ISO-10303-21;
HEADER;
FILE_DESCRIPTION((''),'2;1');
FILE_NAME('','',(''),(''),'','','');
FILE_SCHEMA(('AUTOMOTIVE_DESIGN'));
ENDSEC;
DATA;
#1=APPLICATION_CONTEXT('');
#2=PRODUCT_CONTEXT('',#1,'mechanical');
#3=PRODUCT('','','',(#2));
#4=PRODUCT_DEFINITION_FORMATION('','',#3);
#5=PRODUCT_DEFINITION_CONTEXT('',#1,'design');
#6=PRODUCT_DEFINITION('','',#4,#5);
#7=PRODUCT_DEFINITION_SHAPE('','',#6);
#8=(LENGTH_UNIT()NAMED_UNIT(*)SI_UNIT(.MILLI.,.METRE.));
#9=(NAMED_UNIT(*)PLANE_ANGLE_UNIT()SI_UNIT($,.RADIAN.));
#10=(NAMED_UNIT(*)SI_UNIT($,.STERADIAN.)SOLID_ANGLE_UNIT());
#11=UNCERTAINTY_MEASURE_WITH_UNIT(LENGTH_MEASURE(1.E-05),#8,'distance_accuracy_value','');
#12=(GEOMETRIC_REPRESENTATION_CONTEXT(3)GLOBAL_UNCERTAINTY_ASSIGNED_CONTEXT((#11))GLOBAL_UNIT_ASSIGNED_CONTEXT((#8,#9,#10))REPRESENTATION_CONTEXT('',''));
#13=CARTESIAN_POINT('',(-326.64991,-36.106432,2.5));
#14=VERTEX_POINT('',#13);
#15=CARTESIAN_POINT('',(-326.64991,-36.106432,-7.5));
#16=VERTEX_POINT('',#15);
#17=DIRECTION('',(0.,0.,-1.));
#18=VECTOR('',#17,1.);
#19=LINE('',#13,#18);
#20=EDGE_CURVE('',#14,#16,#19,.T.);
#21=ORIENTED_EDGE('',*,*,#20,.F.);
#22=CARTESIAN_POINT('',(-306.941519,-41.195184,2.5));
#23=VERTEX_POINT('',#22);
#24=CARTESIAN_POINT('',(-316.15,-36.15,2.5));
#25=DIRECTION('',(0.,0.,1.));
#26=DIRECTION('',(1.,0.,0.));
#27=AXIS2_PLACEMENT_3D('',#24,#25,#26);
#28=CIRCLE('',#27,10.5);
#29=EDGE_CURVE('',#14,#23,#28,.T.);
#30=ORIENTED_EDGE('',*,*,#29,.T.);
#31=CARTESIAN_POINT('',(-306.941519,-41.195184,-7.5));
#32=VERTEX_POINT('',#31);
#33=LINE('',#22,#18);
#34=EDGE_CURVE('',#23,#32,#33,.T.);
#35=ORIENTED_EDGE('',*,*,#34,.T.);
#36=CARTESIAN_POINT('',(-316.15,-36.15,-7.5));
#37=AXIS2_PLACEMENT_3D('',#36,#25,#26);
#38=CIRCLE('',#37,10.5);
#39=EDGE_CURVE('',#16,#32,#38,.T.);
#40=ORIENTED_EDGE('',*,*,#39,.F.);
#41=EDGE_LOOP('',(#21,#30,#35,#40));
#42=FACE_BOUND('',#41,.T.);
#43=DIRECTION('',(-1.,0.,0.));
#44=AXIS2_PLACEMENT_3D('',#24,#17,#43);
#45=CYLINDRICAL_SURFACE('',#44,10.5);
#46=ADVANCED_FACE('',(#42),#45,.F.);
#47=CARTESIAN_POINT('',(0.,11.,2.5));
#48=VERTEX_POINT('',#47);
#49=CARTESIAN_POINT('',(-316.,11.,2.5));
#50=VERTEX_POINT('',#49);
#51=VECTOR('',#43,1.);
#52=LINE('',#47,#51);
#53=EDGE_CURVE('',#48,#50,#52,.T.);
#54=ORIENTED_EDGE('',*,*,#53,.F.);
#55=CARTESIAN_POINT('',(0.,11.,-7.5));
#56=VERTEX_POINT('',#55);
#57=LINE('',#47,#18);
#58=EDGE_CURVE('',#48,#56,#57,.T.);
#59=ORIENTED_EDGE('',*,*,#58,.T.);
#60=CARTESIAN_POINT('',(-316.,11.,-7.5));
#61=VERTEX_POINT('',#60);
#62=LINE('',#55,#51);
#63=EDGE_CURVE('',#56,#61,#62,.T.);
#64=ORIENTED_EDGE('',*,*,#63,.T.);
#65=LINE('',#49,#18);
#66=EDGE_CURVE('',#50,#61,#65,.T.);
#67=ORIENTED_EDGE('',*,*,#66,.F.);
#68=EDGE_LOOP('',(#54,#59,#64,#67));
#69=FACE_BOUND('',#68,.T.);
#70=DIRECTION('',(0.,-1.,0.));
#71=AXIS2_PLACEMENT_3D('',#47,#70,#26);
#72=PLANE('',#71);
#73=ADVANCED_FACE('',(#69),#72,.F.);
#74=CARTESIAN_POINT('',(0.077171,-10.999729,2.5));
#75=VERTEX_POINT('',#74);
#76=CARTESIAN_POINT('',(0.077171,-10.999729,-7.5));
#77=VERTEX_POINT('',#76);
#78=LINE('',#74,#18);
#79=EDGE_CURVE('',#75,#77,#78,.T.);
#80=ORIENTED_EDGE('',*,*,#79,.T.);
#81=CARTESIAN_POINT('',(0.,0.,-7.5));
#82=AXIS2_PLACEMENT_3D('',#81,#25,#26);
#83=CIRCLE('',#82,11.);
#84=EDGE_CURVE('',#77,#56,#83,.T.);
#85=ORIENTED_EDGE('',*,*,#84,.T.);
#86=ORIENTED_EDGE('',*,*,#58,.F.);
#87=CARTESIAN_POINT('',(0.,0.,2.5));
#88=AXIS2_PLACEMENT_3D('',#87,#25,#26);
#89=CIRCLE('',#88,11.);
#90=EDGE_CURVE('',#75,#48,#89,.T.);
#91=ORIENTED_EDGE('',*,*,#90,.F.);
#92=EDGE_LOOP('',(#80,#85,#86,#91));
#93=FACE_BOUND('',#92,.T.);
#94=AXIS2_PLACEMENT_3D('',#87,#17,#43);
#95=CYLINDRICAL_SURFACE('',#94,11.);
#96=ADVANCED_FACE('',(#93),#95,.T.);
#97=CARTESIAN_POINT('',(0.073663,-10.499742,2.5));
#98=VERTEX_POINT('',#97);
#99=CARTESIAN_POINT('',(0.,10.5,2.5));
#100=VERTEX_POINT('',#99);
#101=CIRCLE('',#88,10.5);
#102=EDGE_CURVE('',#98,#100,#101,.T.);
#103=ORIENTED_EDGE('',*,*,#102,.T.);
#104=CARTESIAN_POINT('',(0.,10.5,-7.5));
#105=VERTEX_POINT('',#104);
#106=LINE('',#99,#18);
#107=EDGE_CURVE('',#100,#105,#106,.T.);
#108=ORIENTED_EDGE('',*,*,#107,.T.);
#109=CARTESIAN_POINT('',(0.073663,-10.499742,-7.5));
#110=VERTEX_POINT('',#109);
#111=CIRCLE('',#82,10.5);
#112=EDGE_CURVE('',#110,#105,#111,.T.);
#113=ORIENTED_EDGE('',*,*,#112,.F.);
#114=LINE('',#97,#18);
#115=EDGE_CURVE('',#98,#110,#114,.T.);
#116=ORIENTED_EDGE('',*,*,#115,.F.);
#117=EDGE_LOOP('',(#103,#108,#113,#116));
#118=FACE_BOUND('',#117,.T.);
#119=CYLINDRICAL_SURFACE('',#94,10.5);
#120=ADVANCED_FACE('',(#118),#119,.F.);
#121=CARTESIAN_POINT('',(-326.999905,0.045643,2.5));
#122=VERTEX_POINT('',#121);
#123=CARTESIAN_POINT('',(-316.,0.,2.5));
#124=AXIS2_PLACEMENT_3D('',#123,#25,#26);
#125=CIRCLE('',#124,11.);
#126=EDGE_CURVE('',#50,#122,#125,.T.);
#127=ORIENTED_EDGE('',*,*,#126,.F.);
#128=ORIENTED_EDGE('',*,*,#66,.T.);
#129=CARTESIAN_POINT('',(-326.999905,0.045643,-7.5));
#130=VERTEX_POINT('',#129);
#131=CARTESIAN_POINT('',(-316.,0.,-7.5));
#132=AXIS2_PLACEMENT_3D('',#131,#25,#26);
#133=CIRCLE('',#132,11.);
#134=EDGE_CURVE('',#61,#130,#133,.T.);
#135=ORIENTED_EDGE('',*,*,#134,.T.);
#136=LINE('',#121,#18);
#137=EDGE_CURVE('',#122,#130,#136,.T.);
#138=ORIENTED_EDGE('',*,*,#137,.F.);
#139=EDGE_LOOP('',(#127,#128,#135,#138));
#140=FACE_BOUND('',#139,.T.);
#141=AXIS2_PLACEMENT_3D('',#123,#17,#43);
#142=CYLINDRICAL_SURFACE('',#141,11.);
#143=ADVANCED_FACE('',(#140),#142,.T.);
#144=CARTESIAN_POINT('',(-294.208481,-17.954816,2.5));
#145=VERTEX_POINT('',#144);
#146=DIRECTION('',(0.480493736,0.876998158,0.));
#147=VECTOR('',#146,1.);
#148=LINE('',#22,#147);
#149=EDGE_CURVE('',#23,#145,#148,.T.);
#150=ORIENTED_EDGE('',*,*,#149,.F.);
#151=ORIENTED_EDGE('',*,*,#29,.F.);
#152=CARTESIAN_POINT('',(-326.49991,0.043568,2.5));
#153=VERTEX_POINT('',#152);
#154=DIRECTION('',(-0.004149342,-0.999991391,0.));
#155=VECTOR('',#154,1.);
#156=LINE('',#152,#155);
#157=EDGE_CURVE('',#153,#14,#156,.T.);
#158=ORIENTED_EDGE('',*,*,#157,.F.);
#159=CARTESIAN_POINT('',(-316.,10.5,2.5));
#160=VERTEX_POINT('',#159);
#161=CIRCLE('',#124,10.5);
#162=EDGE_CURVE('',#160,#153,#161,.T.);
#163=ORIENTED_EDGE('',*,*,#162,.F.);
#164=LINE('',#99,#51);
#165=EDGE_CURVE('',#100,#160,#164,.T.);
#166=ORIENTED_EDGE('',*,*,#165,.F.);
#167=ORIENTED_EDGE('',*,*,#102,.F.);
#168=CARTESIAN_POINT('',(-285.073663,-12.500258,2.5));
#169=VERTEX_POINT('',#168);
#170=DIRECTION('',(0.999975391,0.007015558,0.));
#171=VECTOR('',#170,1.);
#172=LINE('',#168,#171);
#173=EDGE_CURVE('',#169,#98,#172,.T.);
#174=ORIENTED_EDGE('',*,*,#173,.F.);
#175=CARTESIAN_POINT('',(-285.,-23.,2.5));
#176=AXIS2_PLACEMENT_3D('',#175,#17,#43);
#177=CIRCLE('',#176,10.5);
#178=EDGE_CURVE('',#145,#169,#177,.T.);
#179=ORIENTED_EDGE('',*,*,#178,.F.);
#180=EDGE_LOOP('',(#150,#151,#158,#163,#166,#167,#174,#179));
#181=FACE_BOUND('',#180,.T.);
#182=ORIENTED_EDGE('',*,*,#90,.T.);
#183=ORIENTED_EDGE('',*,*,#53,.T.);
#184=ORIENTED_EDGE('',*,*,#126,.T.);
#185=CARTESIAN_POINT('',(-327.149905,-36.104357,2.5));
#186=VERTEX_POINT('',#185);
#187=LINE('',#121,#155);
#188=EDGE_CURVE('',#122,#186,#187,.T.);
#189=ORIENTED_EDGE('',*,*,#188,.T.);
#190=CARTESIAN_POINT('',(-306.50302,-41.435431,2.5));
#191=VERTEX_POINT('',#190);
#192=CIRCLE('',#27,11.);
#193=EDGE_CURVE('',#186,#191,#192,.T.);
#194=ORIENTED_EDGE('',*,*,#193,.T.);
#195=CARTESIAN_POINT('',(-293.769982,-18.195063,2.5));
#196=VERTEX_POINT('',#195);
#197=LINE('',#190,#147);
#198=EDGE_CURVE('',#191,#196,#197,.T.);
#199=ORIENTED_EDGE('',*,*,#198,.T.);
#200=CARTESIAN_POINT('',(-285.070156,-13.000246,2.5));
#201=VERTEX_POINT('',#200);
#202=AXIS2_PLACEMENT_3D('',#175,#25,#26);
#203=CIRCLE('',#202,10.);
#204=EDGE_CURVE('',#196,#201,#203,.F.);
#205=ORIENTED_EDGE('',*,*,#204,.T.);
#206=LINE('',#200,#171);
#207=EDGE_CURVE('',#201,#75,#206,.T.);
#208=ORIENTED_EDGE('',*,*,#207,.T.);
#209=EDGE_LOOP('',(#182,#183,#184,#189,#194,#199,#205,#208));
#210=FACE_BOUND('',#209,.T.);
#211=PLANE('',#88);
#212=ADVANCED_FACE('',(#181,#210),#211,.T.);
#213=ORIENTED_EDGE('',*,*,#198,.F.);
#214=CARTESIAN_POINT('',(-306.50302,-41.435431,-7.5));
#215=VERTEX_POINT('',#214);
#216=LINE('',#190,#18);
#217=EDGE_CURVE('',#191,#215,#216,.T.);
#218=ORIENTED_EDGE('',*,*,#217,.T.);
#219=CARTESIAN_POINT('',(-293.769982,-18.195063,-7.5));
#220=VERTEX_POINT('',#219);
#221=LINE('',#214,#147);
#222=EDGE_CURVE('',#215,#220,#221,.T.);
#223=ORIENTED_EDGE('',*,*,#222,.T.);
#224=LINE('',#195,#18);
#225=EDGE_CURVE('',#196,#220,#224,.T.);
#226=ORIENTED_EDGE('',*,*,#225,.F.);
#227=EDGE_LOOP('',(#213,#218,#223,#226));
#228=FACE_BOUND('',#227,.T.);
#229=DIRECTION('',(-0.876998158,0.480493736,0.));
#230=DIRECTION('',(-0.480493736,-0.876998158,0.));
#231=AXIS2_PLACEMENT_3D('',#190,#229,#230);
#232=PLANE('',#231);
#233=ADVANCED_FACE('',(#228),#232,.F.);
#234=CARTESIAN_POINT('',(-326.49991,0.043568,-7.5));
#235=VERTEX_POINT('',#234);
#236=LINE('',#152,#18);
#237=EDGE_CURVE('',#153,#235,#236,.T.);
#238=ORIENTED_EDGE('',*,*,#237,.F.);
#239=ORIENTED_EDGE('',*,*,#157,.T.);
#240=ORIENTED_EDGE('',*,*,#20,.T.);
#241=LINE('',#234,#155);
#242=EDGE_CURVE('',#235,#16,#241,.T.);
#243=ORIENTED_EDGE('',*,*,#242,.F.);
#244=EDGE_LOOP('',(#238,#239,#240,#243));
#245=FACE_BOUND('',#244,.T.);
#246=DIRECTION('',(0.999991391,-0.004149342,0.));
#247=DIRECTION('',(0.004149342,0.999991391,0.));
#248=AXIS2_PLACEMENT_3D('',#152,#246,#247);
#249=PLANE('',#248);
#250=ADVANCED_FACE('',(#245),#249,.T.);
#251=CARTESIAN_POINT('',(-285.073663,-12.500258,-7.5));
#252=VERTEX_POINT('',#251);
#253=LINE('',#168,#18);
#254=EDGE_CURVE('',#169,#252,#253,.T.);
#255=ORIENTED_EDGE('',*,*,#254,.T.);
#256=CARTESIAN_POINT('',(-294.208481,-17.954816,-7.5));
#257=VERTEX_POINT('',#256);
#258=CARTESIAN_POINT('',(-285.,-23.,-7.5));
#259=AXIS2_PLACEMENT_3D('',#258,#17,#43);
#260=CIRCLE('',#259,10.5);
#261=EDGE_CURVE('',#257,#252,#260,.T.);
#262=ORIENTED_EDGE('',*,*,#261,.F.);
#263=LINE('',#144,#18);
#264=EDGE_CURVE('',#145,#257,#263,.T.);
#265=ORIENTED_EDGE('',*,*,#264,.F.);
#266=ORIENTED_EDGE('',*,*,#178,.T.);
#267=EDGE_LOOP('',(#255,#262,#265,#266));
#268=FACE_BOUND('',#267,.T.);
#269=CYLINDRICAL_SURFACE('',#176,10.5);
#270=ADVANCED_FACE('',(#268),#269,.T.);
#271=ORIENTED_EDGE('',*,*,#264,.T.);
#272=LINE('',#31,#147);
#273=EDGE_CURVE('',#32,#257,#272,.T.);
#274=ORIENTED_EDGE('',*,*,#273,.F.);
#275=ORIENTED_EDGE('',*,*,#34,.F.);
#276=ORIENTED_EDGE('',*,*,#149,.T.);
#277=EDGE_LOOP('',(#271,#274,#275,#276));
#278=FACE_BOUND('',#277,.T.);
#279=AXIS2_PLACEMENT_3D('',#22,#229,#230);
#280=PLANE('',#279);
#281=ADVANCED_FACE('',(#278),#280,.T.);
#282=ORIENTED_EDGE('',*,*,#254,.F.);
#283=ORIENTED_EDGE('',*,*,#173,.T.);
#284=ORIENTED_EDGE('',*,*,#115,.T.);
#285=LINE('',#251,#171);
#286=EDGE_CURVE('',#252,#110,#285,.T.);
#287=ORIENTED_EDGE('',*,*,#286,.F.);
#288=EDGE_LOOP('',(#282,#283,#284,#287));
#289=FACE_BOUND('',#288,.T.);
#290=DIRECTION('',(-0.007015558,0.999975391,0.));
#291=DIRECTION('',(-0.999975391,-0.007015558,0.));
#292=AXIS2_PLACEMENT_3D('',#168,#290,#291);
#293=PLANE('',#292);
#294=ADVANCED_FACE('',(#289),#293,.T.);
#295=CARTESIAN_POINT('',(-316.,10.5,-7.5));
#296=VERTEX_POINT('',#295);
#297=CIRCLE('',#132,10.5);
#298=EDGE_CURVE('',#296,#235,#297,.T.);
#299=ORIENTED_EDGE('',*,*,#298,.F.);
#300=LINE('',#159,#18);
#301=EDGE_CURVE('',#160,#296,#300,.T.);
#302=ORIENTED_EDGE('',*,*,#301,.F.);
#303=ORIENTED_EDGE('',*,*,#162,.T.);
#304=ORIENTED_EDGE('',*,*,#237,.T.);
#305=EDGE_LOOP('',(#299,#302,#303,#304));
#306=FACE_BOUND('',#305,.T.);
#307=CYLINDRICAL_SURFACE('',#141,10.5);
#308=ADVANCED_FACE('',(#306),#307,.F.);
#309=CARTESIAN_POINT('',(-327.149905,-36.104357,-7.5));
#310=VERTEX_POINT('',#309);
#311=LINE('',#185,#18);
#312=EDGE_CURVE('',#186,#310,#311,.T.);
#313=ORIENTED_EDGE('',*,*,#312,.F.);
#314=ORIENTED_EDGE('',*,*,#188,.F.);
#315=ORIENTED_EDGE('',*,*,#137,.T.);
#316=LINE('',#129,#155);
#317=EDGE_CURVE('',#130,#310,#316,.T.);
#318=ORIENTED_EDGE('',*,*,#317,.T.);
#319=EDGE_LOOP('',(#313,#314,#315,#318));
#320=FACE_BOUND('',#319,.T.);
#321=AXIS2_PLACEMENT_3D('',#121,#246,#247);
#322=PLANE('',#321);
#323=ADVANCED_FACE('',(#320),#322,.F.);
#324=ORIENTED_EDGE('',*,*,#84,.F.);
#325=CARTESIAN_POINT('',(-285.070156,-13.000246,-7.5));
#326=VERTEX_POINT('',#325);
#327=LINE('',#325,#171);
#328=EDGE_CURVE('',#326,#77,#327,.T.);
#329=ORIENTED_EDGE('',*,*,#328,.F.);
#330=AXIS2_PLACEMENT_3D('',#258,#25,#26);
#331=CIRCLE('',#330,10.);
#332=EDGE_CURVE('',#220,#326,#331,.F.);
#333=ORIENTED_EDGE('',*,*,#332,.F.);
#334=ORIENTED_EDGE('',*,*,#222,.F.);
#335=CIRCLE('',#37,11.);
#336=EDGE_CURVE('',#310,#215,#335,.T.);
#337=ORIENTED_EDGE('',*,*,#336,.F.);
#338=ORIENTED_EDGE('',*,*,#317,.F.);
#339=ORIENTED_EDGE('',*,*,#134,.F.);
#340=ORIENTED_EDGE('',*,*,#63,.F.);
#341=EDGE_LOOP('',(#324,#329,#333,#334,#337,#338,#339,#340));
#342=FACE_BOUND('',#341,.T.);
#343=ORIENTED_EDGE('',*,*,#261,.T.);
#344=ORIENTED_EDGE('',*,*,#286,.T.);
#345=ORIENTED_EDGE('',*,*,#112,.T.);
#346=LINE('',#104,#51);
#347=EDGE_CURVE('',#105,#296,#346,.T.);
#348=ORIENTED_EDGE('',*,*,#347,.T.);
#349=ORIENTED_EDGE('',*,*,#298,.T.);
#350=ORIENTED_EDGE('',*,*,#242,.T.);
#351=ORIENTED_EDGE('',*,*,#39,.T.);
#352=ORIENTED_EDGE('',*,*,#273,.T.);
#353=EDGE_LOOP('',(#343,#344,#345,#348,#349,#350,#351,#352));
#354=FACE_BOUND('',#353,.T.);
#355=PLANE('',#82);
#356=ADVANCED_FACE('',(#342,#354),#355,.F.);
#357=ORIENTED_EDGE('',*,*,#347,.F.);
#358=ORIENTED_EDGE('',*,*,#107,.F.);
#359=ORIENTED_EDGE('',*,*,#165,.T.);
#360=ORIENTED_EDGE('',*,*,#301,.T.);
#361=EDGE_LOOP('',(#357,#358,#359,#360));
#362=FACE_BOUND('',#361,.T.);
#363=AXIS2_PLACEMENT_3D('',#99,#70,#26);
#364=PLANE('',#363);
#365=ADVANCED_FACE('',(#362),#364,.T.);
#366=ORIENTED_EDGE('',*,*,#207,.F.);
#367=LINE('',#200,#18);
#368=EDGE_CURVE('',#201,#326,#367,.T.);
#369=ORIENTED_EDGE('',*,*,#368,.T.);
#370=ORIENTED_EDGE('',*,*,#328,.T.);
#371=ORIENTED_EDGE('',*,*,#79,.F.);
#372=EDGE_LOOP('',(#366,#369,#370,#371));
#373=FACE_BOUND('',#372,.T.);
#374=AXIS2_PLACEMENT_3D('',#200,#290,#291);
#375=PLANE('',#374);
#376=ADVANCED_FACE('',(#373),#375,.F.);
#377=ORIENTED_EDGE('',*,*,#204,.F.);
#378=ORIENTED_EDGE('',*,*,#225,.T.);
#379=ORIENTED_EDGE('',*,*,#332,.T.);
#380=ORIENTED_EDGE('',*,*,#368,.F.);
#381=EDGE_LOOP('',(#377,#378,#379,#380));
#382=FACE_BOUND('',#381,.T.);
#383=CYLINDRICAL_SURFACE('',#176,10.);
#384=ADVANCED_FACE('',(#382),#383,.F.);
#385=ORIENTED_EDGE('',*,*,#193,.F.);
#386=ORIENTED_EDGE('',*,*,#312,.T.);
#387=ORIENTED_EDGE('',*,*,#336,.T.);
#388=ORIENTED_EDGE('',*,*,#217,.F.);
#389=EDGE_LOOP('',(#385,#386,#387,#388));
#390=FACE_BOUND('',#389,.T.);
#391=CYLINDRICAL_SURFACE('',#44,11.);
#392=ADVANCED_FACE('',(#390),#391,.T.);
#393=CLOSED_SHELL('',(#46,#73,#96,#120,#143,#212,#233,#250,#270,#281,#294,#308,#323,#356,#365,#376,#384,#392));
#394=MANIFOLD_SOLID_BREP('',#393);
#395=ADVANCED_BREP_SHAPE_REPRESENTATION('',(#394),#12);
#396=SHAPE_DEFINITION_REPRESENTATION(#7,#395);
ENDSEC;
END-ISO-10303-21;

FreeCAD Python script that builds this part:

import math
import FreeCAD as App
import Part
import Sketcher
from FreeCAD import Vector

doc = App.newDocument("Part")
body = doc.addObject("PartDesign::Body", "Body")

# Sketch on XY plane
sketch1 = body.newObject("Sketcher::SketchObject", "Sketch")
sketch1.AttachmentSupport = (doc.getObject("XY_Plane"), [""])
sketch1.MapMode = "FlatFace"
sketch1.AttachmentOffset = App.Placement(Vector(0, 0, -2.5), App.Rotation())
sketch1.addGeometry([
    Part.LineSegment(Vector(-285, -13, 0), Vector(0, -11, 0)),  # 0
    Part.ArcOfCircle(Part.Circle(Vector(0, 0, 0), Vector(0, 0, 1), 11), math.radians(-90), math.radians(90)),  # 1
    Part.LineSegment(Vector(0, 11, 0), Vector(-316, 11, 0)),  # 2
    Part.ArcOfCircle(Part.Circle(Vector(-316, 0, 0), Vector(0, 0, 1), 11), math.radians(90), math.radians(180)),  # 3
    Part.LineSegment(Vector(-327, 0, 0), Vector(-327, -36, 0)),  # 4
    Part.ArcOfCircle(Part.Circle(Vector(-316, -36, 0), Vector(0, 0, 1), 11), math.radians(180), math.radians(331)),  # 5
    Part.LineSegment(Vector(-307, -41, 0), Vector(-294, -18, 0)),  # 6
    Part.ArcOfCircle(Part.Circle(Vector(-285, -23, 0), Vector(0, 0, 1), 10), math.radians(90), math.radians(151)),  # 7
    Part.LineSegment(Vector(0, -10, 0), Vector(-285, -13, 0)),  # 8
    Part.ArcOfCircle(Part.Circle(Vector(-285, -23, 0), Vector(0, 0, 1), 11), math.radians(90), math.radians(151)),  # 9
    Part.LineSegment(Vector(-294, -18, 0), Vector(-307, -41, 0)),  # 10
    Part.ArcOfCircle(Part.Circle(Vector(-316, -36, 0), Vector(0, 0, 1), 10), math.radians(180), math.radians(331)),  # 11
    Part.LineSegment(Vector(-327, -36, 0), Vector(-326, 0, 0)),  # 12
    Part.ArcOfCircle(Part.Circle(Vector(-316, 0, 0), Vector(0, 0, 1), 10), math.radians(90), math.radians(180)),  # 13
    Part.LineSegment(Vector(-316, 10, 0), Vector(0, 10, 0)),  # 14
    Part.ArcOfCircle(Part.Circle(Vector(0, 0, 0), Vector(0, 0, 1), 10), math.radians(-90), math.radians(90)),  # 15
], False)
sketch1.addConstraint([
    Sketcher.Constraint("Tangent", 0, 2, 1, 1),
    Sketcher.Constraint("Tangent", 1, 2, 2, 1),
    Sketcher.Constraint("Tangent", 2, 2, 3, 1),
    Sketcher.Constraint("Tangent", 3, 2, 4, 1),
    Sketcher.Constraint("Tangent", 4, 2, 5, 1),
    Sketcher.Constraint("Tangent", 5, 2, 6, 1),
    Sketcher.Constraint("Tangent", 6, 2, 7, 2),
    Sketcher.Constraint("Tangent", 7, 1, 0, 1),
    Sketcher.Constraint("Tangent", 8, 2, 9, 1),
    Sketcher.Constraint("Tangent", 9, 2, 10, 1),
    Sketcher.Constraint("Tangent", 10, 2, 11, 2),
    Sketcher.Constraint("Tangent", 11, 1, 12, 1),
    Sketcher.Constraint("Tangent", 12, 2, 13, 2),
    Sketcher.Constraint("Tangent", 13, 1, 14, 1),
    Sketcher.Constraint("Tangent", 14, 2, 15, 2),
    Sketcher.Constraint("Tangent", 15, 1, 8, 1),
    Sketcher.Constraint("Horizontal", 2),
    Sketcher.Constraint("Horizontal", 14),
    Sketcher.Constraint("Coincident", 1, 3, -1, 1),
    Sketcher.Constraint("Coincident", 15, 3, -1, 1),
    Sketcher.Constraint("Coincident", 9, 3, 7, 3),
    Sketcher.Constraint("Coincident", 11, 3, 5, 3),
    Sketcher.Constraint("Coincident", 13, 3, 3, 3),
    Sketcher.Constraint("Equal", 1, 3),
    Sketcher.Constraint("Equal", 3, 5),
    Sketcher.Constraint("Equal", 9, 11),
    Sketcher.Constraint("Equal", 11, 13),
    Sketcher.Constraint("Parallel", 0, 8),
    Sketcher.Constraint("Radius", 1, 11.0),
    Sketcher.Constraint("Radius", 7, 10.0),
    Sketcher.Constraint("DistanceX", 2, 2, 2, 1, 316.0),
    Sketcher.Constraint("DistanceX", 7, 3, -1, 1, 285.0),
    Sketcher.Constraint("DistanceY", 7, 3, -1, 1, 23.0),
    Sketcher.Constraint("DistanceX", 5, 3, -1, 1, 316.15),
    Sketcher.Constraint("DistanceY", 5, 3, -1, 1, 36.15),
])
pad1 = body.newObject("PartDesign::Pad", "Pad")
pad1.Profile = sketch1
pad1.Length = 10
pad1.Midplane = True

doc.recompute()
